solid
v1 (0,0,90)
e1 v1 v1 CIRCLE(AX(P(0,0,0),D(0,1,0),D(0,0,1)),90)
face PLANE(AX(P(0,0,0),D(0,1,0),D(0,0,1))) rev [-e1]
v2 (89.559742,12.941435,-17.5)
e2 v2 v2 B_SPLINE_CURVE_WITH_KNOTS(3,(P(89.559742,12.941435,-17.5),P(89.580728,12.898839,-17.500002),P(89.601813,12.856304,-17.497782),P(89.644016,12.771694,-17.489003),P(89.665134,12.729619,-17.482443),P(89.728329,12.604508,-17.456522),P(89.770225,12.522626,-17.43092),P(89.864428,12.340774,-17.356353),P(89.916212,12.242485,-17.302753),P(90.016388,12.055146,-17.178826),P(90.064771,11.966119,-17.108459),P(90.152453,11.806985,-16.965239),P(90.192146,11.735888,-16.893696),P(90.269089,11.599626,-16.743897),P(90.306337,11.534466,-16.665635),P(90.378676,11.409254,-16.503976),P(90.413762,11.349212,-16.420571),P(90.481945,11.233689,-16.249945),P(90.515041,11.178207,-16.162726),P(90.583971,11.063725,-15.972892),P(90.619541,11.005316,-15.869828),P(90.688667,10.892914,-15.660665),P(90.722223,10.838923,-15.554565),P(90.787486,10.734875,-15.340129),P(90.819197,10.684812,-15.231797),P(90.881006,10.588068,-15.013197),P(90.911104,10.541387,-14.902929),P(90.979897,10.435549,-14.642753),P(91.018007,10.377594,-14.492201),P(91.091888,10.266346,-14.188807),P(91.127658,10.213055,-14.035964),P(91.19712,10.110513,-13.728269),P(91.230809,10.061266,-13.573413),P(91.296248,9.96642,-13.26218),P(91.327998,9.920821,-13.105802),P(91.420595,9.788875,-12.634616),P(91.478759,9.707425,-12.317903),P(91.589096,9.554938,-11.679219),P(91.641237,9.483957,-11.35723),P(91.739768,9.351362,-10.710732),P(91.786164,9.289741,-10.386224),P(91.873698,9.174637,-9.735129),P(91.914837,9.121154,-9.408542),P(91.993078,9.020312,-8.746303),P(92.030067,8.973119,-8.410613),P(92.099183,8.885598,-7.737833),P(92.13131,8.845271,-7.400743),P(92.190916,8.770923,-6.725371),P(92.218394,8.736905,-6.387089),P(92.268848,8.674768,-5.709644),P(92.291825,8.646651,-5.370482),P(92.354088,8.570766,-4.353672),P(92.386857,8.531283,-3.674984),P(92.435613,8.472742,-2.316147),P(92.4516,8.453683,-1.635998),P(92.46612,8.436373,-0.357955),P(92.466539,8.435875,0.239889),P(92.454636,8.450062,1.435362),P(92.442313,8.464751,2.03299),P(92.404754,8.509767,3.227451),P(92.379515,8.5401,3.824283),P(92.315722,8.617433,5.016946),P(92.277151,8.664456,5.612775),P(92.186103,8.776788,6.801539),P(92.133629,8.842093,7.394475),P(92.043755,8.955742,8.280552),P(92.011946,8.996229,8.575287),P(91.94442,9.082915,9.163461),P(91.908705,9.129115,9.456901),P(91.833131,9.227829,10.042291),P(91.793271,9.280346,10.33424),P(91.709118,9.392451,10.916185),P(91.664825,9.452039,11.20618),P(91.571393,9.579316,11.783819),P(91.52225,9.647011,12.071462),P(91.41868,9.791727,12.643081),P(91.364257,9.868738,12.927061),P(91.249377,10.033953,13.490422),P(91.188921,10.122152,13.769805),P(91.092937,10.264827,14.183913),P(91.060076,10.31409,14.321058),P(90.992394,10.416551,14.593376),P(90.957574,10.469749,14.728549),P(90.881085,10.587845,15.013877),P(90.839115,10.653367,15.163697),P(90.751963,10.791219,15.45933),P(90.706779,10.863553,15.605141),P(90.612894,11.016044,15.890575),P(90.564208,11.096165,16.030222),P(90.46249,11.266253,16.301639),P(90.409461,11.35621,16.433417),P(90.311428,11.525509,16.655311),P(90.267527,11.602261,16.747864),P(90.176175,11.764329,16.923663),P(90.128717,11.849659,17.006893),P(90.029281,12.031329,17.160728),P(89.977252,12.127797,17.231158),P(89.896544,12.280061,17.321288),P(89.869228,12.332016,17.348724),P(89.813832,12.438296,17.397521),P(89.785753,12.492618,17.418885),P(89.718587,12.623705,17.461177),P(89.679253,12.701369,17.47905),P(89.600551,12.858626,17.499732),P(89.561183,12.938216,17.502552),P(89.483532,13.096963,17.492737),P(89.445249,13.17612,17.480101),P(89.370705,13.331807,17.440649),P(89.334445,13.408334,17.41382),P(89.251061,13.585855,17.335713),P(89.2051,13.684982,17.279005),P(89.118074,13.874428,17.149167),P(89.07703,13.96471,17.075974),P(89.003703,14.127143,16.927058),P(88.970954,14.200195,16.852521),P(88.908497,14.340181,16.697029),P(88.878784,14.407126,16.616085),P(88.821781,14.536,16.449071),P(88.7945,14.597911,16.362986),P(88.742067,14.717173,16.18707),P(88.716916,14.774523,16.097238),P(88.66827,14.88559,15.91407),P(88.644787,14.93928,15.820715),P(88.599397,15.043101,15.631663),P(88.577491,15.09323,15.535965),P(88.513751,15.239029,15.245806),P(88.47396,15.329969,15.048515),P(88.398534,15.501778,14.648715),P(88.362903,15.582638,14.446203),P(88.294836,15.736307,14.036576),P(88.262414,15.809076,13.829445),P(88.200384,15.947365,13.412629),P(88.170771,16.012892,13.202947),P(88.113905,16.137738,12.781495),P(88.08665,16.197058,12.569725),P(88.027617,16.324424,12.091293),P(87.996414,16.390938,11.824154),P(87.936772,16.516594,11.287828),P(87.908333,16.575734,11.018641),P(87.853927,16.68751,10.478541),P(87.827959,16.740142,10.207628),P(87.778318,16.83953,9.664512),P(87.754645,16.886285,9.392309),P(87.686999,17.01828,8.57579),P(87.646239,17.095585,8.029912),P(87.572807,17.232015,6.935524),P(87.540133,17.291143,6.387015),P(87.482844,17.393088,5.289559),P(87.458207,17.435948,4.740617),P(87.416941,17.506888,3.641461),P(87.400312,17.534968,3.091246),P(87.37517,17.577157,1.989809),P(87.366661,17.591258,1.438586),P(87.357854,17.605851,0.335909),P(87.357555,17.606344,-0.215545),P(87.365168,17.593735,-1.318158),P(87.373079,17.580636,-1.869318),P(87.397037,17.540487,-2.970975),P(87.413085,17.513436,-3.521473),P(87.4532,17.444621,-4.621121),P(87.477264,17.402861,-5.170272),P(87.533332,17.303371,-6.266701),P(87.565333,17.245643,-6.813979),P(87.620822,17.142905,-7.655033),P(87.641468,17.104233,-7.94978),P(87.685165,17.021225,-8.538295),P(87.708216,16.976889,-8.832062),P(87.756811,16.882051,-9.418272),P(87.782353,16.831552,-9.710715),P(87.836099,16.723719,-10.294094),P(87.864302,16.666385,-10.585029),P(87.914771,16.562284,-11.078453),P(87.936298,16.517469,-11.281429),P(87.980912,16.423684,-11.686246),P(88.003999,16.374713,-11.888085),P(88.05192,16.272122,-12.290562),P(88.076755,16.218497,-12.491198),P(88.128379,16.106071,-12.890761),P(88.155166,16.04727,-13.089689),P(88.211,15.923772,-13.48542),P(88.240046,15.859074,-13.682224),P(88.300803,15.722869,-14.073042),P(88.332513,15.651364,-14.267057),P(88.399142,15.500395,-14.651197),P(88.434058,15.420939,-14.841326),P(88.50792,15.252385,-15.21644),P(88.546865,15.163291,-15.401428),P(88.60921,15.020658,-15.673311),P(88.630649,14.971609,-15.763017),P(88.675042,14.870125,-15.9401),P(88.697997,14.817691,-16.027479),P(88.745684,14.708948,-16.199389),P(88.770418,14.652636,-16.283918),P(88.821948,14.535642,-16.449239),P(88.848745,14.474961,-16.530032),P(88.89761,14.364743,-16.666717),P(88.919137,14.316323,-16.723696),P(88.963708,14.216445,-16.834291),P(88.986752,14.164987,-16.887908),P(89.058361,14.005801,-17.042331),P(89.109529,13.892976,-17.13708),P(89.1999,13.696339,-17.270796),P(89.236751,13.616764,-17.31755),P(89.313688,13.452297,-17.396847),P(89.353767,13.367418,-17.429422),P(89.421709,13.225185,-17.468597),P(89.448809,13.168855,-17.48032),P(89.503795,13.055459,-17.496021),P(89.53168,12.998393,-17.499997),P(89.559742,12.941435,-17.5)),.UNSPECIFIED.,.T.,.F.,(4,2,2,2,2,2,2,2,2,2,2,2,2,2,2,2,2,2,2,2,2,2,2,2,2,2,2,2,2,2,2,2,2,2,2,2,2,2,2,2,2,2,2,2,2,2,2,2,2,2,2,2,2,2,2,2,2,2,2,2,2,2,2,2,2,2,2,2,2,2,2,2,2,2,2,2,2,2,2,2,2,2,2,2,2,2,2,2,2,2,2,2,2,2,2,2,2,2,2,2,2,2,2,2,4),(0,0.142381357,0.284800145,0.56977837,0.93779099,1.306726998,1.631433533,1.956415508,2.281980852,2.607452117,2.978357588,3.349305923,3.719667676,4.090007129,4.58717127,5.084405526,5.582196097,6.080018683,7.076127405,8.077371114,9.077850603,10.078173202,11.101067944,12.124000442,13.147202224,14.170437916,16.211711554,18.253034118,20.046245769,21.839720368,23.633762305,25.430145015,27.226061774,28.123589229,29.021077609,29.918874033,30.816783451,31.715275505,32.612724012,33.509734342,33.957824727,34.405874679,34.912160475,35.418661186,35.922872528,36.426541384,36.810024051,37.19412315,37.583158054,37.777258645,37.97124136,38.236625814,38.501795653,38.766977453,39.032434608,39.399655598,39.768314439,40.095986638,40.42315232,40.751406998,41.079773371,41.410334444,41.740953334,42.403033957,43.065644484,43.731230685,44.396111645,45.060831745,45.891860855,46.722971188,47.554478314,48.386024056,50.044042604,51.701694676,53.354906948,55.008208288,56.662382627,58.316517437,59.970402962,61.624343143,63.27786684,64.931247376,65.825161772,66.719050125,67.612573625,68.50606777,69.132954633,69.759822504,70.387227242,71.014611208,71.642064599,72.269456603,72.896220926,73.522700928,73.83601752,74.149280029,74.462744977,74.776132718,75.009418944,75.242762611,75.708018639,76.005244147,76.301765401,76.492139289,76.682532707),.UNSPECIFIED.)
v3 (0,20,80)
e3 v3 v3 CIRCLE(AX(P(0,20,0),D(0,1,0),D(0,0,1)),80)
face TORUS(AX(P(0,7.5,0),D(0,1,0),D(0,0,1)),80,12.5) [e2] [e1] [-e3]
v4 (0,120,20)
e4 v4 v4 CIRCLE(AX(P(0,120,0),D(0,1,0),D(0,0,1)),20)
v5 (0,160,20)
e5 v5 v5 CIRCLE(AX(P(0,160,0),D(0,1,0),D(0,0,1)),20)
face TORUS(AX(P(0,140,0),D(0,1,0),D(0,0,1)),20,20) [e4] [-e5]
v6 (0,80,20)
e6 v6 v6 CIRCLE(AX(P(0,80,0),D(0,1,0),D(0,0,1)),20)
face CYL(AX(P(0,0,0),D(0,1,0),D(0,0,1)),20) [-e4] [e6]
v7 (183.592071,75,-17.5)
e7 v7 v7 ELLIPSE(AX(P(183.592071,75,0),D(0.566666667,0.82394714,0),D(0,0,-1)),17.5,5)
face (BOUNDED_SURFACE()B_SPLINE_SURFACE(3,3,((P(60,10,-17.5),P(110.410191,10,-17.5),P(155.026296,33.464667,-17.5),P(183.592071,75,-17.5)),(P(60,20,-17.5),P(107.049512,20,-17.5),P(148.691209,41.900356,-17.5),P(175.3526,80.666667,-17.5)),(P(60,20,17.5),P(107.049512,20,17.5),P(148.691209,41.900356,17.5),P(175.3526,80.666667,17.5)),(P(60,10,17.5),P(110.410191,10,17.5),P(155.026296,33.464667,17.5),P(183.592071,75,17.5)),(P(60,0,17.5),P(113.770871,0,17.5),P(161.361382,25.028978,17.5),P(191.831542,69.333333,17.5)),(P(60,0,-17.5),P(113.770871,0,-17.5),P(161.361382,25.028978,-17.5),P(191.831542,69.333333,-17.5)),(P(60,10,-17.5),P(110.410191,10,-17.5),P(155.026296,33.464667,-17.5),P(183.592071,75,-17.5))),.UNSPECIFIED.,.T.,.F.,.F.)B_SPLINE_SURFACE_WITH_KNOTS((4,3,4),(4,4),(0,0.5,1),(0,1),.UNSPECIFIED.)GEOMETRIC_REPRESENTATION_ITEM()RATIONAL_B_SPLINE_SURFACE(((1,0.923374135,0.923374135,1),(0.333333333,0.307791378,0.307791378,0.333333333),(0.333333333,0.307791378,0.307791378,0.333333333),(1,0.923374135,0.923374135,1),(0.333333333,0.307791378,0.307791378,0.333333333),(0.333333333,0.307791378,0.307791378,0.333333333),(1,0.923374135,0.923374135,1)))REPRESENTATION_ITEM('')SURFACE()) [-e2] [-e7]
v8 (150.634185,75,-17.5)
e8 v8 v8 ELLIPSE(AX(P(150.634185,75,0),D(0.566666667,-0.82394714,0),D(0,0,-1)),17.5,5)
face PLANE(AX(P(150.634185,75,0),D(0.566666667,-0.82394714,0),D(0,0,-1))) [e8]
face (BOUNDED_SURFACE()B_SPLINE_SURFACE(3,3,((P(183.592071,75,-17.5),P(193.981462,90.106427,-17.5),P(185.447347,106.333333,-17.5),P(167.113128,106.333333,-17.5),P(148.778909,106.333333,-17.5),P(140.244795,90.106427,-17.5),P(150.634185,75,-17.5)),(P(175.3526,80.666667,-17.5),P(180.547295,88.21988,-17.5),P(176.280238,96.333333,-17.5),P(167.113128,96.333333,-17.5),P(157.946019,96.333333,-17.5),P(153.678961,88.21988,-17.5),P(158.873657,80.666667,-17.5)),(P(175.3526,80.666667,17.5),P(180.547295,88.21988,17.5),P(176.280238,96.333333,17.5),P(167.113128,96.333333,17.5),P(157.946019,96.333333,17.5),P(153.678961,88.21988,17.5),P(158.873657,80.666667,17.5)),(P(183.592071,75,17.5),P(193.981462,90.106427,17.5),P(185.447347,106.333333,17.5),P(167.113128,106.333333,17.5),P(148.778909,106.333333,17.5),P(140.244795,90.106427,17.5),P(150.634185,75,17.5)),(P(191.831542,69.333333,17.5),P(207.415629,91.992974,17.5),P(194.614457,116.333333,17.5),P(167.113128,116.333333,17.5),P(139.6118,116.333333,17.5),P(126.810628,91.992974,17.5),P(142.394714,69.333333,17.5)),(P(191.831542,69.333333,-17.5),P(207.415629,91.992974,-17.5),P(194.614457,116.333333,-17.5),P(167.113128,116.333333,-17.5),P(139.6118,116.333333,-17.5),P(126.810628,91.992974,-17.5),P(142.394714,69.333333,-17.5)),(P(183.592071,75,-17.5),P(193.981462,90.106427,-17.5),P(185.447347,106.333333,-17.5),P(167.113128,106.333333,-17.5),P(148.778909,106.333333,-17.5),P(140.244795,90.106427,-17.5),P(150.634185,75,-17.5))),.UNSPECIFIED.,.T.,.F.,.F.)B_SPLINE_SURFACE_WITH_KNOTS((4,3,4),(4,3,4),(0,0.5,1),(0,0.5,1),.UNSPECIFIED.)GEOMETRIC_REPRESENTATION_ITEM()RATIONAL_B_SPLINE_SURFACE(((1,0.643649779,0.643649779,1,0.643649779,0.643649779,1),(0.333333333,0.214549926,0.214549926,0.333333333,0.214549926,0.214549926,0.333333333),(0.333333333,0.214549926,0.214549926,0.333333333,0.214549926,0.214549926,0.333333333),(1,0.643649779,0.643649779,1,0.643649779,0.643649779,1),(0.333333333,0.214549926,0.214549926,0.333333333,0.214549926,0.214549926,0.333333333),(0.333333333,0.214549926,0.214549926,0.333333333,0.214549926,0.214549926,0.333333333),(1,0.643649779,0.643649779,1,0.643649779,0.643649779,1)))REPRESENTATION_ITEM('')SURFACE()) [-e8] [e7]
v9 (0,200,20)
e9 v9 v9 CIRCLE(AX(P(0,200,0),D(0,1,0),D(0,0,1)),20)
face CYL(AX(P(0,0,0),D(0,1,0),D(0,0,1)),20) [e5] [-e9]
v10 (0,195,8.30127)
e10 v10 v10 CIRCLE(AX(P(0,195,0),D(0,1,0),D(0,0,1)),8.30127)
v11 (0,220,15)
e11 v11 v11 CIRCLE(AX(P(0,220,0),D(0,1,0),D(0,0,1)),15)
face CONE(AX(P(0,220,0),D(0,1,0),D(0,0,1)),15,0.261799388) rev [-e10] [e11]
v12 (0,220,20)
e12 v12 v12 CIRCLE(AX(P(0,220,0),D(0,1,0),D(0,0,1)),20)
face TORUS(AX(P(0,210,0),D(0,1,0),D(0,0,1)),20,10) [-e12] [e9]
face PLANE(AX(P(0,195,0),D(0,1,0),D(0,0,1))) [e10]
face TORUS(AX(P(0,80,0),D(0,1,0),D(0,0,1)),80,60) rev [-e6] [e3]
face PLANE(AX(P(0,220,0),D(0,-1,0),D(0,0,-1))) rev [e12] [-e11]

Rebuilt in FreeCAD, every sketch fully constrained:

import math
import FreeCAD as App
import Part
import Sketcher
from FreeCAD import Vector
Q = App.Units.Quantity

doc = App.newDocument("Part")
body = doc.addObject("PartDesign::Body", "Body")

# Sketch on XY plane
sketch1 = body.newObject("Sketcher::SketchObject", "Sketch")
sketch1.AttachmentSupport = (doc.getObject("XY_Plane"), [""])
sketch1.MapMode = "FlatFace"
sketch1.addGeometry(Part.LineSegment(Vector(0, 220, 0), Vector(0, 0, 0)), False)
sketch1.addGeometry(Part.LineSegment(Vector(0, 0, 0), Vector(90, 0, 0)), False)
sketch1.addGeometry(Part.ArcOfCircle(Part.Circle(Vector(80, 8, 0), Vector(0, 0, 1), 12), math.radians(-37), math.radians(90)), False)
sketch1.addGeometry(Part.ArcOfCircle(Part.Circle(Vector(80, 80, 0), Vector(0, 0, 1), 60), math.radians(-180), math.radians(-90)), False)
sketch1.addGeometry(Part.LineSegment(Vector(20, 80, 0), Vector(20, 120, 0)), False)
sketch1.addGeometry(Part.ArcOfCircle(Part.Circle(Vector(20, 140, 0), Vector(0, 0, 1), 20), math.radians(-90), math.radians(90)), False)
sketch1.addGeometry(Part.LineSegment(Vector(20, 160, 0), Vector(20, 200, 0)), False)
sketch1.addGeometry(Part.ArcOfCircle(Part.Circle(Vector(20, 210, 0), Vector(0, 0, 1), 10), math.radians(-90), math.radians(90)), False)
sketch1.addGeometry(Part.LineSegment(Vector(20, 220, 0), Vector(0, 220, 0)), False)
sketch1.addConstraint(Sketcher.Constraint("Coincident", 0, 2, 1, 1))
sketch1.addConstraint(Sketcher.Constraint("Coincident", 1, 2, 2, 1))
sketch1.addConstraint(Sketcher.Constraint("Tangent", 2, 2, 3, 2))
sketch1.addConstraint(Sketcher.Constraint("Tangent", 3, 1, 4, 1))
sketch1.addConstraint(Sketcher.Constraint("Coincident", 4, 2, 5, 1))
sketch1.addConstraint(Sketcher.Constraint("Coincident", 5, 2, 6, 1))
sketch1.addConstraint(Sketcher.Constraint("Coincident", 6, 2, 7, 1))
sketch1.addConstraint(Sketcher.Constraint("Tangent", 7, 2, 8, 1))
sketch1.addConstraint(Sketcher.Constraint("Coincident", 8, 2, 0, 1))
sketch1.addConstraint(Sketcher.Constraint("Vertical", 0))
sketch1.addConstraint(Sketcher.Constraint("Horizontal", 1))
sketch1.addConstraint(Sketcher.Constraint("Vertical", 4))
sketch1.addConstraint(Sketcher.Constraint("Vertical", 6))
sketch1.addConstraint(Sketcher.Constraint("Horizontal", 8))
sketch1.addConstraint(Sketcher.Constraint("Coincident", 0, 2, -1, 1))
sketch1.addConstraint(Sketcher.Constraint("Vertical", 2, 3, 3, 3))
sketch1.addConstraint(Sketcher.Constraint("Vertical", 5, 3, 7, 3))
sketch1.addConstraint(Sketcher.Constraint("Vertical", 7, 3, 3, 1))
sketch1.addConstraint(Sketcher.Constraint("Vertical", 4, 2, 5, 2))
sketch1.addConstraint(Sketcher.Constraint("Equal", 4, 6))
sketch1.addConstraint(Sketcher.Constraint("Radius", 3, Q("60 mm")))
sketch1.addConstraint(Sketcher.Constraint("Radius", 5, Q("20 mm")))
sketch1.addConstraint(Sketcher.Constraint("Radius", 7, Q("10 mm")))
sketch1.addConstraint(Sketcher.Constraint("Radius", 2, Q("12.5 mm")))
sketch1.addConstraint(Sketcher.Constraint("DistanceX", 1, 1, 1, 2, Q("90 mm")))
sketch1.addConstraint(Sketcher.Constraint("DistanceX", 8, 2, 8, 1, Q("20 mm")))
sketch1.addConstraint(Sketcher.Constraint("DistanceY", 0, 2, 0, 1, Q("220 mm")))
revolution = body.newObject("PartDesign::Revolution", "Revolution")
revolution.Profile = sketch1
revolution.ReferenceAxis = (sketch1, ["V_Axis"])
revolution.Angle = 360

# Sketch on YZ plane
sketch2 = body.newObject("Sketcher::SketchObject", "Sketch001")
sketch2.AttachmentSupport = (doc.getObject("YZ_Plane"), [""])
sketch2.MapMode = "FlatFace"
sketch2.addGeometry(Part.Ellipse(Vector(10, -17.5, 0), Vector(15, 0, 0), Vector(10, 0, 0)), False)
sketch2.addConstraint(Sketcher.Constraint("Block", 0))

# Sketch on XY plane
sketch3 = body.newObject("Sketcher::SketchObject", "Sketch002")
sketch3.AttachmentSupport = (doc.getObject("XY_Plane"), [""])
sketch3.MapMode = "FlatFace"
sketch3.addGeometry(Part.LineSegment(Vector(0, 10, 0), Vector(60, 10, 0)), False)
sketch3.addGeometry(Part.ArcOfCircle(Part.Circle(Vector(60, 160, 0), Vector(0, 0, 1), 150), math.radians(-90), math.radians(-35)), False)
sketch3.addGeometry(Part.ArcOfCircle(Part.Circle(Vector(167, 86, 0), Vector(0, 0, 1), 20), math.radians(-35), math.radians(215)), False)
sketch3.addConstraint(Sketcher.Constraint("Tangent", 0, 2, 1, 1))
sketch3.addConstraint(Sketcher.Constraint("Tangent", 1, 2, 2, 1))
sketch3.addConstraint(Sketcher.Constraint("Horizontal", 0))
sketch3.addConstraint(Sketcher.Constraint("PointOnObject", 0, 1, -2))
sketch3.addConstraint(Sketcher.Constraint("Horizontal", 1, 2, 2, 2))
sketch3.addConstraint(Sketcher.Constraint("Radius", 1, Q("150 mm")))
sketch3.addConstraint(Sketcher.Constraint("Radius", 2, Q("20 mm")))
sketch3.addConstraint(Sketcher.Constraint("DistanceX", 0, 1, 0, 2, Q("60 mm")))
sketch3.addConstraint(Sketcher.Constraint("DistanceY", -1, 1, 1, 3, Q("160 mm")))
sketch3.addConstraint(Sketcher.Constraint("DistanceY", -1, 1, 1, 2, Q("75 mm")))
doc.recompute()

additivepipe = body.newObject("PartDesign::AdditivePipe", "AdditivePipe")
additivepipe.Profile = sketch2
additivepipe.Spine = (sketch3, ["Edge1", "Edge2", "Edge3"])

# Sketch on XZ plane
sketch4 = body.newObject("Sketcher::SketchObject", "Sketch003")
sketch4.AttachmentSupport = (doc.getObject("XZ_Plane"), [""])
sketch4.MapMode = "FlatFace"
sketch4.AttachmentOffset = App.Placement(Vector(0, 0, -220), App.Rotation())
sketch4.addGeometry(Part.Circle(Vector(0, 0, 0), Vector(0, 0, 1), 15), False)
sketch4.addConstraint(Sketcher.Constraint("Coincident", 0, 3, -1, 1))
sketch4.addConstraint(Sketcher.Constraint("Diameter", 0, Q("30 mm")))
pocket1 = body.newObject("PartDesign::Pocket", "Pocket")
pocket1.Profile = sketch4
pocket1.Length = 25
pocket1.Reversed = True
pocket1.TaperAngle = -15

doc.recompute()
